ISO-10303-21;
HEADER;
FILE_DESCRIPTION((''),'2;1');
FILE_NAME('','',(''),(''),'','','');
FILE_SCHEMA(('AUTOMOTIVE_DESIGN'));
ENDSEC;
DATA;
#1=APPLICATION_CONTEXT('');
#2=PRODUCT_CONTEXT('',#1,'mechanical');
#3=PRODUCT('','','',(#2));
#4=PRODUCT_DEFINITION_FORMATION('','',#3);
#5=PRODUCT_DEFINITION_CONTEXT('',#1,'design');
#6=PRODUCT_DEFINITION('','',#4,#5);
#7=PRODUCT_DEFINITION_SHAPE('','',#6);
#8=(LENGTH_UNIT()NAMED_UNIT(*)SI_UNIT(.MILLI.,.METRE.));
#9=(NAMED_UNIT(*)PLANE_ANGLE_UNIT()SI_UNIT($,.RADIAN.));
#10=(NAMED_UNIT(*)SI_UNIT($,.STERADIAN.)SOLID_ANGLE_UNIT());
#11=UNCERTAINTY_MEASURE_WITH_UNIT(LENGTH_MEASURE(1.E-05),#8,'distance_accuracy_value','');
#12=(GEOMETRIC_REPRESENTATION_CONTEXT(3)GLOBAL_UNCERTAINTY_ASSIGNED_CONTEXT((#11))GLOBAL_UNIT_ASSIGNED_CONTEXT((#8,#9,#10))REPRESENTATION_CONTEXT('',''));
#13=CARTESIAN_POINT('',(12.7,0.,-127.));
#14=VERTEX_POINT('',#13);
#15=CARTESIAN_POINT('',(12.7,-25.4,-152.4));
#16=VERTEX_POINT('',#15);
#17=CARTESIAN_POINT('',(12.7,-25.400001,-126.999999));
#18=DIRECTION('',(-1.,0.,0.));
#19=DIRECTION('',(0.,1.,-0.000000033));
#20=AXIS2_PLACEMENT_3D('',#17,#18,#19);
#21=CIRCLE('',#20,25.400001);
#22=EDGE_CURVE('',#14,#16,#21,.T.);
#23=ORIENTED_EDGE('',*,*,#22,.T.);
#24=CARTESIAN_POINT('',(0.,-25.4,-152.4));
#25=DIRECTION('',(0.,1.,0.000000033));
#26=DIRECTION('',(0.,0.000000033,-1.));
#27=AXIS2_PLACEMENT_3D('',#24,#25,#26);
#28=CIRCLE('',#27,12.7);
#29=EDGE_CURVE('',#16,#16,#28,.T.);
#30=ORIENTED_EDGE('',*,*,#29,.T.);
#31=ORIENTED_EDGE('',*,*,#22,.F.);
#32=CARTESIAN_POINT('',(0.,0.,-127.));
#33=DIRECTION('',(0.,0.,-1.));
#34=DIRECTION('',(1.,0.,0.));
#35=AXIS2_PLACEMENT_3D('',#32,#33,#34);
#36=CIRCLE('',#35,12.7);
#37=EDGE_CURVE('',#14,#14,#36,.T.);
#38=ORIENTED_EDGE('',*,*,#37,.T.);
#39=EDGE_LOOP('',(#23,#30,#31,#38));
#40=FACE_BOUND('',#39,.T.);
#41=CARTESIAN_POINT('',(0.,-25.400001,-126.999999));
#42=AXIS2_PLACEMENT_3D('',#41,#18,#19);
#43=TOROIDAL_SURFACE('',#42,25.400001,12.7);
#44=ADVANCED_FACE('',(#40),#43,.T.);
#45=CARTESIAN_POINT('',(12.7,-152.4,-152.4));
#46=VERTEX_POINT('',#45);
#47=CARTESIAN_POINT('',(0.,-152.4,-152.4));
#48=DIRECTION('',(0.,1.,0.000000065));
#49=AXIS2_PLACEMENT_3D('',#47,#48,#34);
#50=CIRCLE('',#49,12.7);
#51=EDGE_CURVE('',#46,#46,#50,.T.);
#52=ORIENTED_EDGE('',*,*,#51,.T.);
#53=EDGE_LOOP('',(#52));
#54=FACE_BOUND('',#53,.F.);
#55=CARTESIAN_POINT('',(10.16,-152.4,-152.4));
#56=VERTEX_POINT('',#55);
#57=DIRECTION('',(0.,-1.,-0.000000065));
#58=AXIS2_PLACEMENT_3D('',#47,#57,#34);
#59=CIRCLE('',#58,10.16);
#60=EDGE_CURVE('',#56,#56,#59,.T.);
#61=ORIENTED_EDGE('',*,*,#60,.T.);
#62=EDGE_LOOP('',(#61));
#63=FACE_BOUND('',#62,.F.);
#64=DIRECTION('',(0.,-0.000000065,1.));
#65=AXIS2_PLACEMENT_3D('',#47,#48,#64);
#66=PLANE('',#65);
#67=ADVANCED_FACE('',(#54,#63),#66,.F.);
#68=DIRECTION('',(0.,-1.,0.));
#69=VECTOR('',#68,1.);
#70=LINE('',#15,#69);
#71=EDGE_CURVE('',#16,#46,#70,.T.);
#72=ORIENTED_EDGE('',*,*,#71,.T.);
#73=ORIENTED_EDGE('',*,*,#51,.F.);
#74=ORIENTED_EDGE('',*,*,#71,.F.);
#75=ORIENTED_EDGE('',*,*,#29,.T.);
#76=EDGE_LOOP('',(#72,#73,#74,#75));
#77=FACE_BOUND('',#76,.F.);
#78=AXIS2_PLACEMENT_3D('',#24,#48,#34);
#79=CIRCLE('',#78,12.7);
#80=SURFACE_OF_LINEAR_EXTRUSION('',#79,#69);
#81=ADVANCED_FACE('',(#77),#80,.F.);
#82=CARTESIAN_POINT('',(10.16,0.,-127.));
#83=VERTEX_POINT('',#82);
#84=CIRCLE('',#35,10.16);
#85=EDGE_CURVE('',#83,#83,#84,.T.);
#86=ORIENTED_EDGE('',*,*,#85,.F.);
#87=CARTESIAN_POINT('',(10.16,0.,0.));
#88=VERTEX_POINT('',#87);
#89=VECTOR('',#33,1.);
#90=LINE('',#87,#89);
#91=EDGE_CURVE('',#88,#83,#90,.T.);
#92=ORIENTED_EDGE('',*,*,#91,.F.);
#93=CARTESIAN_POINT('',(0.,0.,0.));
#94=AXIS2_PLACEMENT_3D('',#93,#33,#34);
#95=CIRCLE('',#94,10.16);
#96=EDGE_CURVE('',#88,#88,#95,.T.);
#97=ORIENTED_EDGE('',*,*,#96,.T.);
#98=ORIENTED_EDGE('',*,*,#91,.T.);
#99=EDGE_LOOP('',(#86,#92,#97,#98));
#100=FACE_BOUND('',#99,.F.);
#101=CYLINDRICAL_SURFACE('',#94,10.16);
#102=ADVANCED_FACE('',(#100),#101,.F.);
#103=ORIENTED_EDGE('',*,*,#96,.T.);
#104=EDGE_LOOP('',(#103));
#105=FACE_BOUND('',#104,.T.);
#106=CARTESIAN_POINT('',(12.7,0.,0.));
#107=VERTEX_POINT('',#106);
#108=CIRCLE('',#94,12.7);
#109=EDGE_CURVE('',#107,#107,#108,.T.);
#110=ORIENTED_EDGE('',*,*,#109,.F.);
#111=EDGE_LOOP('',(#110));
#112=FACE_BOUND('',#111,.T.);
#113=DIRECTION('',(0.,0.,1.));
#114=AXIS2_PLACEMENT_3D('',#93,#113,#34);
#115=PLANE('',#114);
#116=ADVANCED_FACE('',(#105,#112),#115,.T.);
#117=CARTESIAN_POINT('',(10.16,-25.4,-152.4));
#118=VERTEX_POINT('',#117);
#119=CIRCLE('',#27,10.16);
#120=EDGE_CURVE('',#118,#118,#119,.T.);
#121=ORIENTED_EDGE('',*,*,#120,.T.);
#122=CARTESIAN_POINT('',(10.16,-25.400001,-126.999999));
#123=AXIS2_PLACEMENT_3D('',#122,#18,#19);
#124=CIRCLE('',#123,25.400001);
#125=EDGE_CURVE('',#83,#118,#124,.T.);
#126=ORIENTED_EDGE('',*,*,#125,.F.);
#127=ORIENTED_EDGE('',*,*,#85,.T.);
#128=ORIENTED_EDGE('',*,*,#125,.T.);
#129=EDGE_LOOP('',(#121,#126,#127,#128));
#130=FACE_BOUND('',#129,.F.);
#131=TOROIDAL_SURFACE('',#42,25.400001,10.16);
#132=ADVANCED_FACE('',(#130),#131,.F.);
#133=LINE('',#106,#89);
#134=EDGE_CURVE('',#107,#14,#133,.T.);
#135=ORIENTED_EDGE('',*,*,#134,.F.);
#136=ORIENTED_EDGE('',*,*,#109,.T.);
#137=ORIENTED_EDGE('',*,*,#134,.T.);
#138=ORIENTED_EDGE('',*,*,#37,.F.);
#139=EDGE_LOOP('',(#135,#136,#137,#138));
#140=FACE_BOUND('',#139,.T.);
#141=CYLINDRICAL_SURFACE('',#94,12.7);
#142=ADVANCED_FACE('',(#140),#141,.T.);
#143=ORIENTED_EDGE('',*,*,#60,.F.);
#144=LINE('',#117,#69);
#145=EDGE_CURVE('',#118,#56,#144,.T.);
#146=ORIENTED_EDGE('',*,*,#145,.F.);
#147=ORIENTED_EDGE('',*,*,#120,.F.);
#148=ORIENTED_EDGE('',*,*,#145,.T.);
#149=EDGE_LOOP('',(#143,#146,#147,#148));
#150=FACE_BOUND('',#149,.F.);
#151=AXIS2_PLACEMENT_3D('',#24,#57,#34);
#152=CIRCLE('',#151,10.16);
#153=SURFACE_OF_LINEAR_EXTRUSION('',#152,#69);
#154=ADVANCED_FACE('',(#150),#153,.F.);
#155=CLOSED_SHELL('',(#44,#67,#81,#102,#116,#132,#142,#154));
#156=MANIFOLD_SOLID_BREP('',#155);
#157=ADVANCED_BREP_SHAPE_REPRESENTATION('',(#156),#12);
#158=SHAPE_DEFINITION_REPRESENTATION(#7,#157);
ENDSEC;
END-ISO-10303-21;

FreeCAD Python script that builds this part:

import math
import FreeCAD as App
import Part
import Sketcher
Q = App.Units.Quantity

doc = App.newDocument("Part")
params = doc.addObject("Spreadsheet::Sheet", "Params")
for row, (alias, value) in enumerate([
    ("sketch1_diameter", "1 in"),
    ("sketch1_diameter2", "0.8 in"),
    ("sketch2_radius", "1 in"),
    ("sketch2_width", "5 in"),
], start=1):
    params.set(f"A{row}", alias)
    params.set(f"B{row}", "=" + value)
    params.setAlias(f"B{row}", alias)

body = doc.addObject("PartDesign::Body", "Body")

sketch1 = body.newObject("Sketcher::SketchObject", "Sketch")
sketch1.AttachmentSupport = (doc.getObject("XY_Plane"), [""])
sketch1.MapMode = "FlatFace"
sketch1.addGeometry(Part.Circle(App.Vector(0, 0, 0), App.Vector(0, 0, 1), 13), False)
sketch1.addGeometry(Part.Circle(App.Vector(0, 0, 0), App.Vector(0, 0, 1), 10), False)
sketch1.addConstraint(Sketcher.Constraint("Coincident", 0, 3, -1, 1))
sketch1.addConstraint(Sketcher.Constraint("Coincident", 1, 3, -1, 1))
sketch1.addConstraint(Sketcher.Constraint("Diameter", 0, Q("1 in")))
sketch1.addConstraint(Sketcher.Constraint("Diameter", 1, Q("0.8 in")))
sketch1.setExpression("Constraints[2]", "Params.sketch1_diameter")
sketch1.setExpression("Constraints[3]", "Params.sketch1_diameter2")

sketch2 = body.newObject("Sketcher::SketchObject", "Sketch001")
sketch2.AttachmentSupport = (doc.getObject("YZ_Plane"), [""])
sketch2.MapMode = "FlatFace"
sketch2.addGeometry(Part.LineSegment(App.Vector(0, 0, 0), App.Vector(0, -127, 0)), False)
sketch2.addGeometry(Part.ArcOfCircle(Part.Circle(App.Vector(-25, -127, 0), App.Vector(0, 0, 1), 25), math.radians(-90), math.radians(0)), False)
sketch2.addGeometry(Part.LineSegment(App.Vector(-25, -152, 0), App.Vector(-152, -152, 0)), False)
sketch2.addConstraint(Sketcher.Constraint("Tangent", 0, 2, 1, 2))
sketch2.addConstraint(Sketcher.Constraint("Tangent", 1, 1, 2, 1))
sketch2.addConstraint(Sketcher.Constraint("Vertical", 0))
sketch2.addConstraint(Sketcher.Constraint("Horizontal", 2))
sketch2.addConstraint(Sketcher.Constraint("Coincident", 0, 1, -1, 1))
sketch2.addConstraint(Sketcher.Constraint("Equal", 2, 0))
sketch2.addConstraint(Sketcher.Constraint("Radius", 1, Q("1 in")))
sketch2.addConstraint(Sketcher.Constraint("DistanceX", 2, 2, 2, 1, Q("5 in")))
sketch2.setExpression("Constraints[6]", "Params.sketch2_radius")
sketch2.setExpression("Constraints[7]", "Params.sketch2_width")
doc.recompute()

additivepipe = body.newObject("PartDesign::AdditivePipe", "AdditivePipe")
additivepipe.Profile = sketch1
additivepipe.Spine = (sketch2, ["Edge1", "Edge2", "Edge3"])

doc.recompute()
